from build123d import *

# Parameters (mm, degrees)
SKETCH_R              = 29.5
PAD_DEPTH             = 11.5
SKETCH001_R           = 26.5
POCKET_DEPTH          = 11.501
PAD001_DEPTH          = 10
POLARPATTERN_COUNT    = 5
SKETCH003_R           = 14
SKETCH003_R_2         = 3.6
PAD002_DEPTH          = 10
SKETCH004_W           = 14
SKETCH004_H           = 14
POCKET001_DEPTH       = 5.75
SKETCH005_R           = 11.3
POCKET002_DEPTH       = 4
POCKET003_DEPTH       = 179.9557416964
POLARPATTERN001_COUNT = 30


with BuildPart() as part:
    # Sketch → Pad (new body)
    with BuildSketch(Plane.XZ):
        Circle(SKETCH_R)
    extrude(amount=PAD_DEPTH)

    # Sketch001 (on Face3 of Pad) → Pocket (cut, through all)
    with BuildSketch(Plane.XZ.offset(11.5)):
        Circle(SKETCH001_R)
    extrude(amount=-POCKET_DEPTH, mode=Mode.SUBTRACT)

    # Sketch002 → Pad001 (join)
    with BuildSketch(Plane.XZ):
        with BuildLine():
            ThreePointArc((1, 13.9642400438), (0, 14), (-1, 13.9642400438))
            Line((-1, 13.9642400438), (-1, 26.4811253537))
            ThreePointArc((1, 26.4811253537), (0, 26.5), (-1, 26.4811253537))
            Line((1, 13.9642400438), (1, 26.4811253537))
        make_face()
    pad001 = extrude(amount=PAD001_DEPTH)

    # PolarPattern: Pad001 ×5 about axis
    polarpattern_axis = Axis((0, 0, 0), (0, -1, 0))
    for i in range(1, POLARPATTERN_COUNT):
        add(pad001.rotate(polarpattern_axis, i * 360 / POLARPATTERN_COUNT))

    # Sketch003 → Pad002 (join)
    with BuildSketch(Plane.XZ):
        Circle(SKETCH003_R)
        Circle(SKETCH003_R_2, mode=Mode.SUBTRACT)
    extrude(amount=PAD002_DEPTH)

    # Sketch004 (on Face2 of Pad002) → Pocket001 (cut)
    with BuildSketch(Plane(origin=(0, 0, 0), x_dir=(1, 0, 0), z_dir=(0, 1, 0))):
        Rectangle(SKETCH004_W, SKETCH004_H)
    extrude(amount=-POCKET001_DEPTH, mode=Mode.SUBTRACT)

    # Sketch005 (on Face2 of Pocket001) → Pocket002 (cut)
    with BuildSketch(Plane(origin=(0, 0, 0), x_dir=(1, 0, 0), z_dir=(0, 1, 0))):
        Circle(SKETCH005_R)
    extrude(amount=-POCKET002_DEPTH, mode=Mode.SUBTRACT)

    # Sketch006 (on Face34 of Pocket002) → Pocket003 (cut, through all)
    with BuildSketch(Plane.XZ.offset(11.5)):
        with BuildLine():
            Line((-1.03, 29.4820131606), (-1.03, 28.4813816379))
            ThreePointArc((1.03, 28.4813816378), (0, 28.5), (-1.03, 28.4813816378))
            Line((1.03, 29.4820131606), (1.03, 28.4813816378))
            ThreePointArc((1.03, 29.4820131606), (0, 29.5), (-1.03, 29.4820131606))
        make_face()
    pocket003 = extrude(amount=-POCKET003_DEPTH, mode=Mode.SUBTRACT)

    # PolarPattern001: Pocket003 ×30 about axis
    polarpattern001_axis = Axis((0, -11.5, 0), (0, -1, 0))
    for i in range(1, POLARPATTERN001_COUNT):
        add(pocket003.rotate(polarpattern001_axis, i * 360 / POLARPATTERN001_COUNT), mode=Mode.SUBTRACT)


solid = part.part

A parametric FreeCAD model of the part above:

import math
import FreeCAD as App
import Part
import Sketcher

V = App.Vector

doc = App.newDocument("Part")
body = doc.addObject("PartDesign::Body", "Body")

# Sketch on XZ plane
sketch1 = body.newObject("Sketcher::SketchObject", "Sketch")
sketch1.AttachmentSupport = (doc.getObject("XZ_Plane"), [""])
sketch1.MapMode = "FlatFace"
sketch1.addGeometry(Part.Circle(V(0, 0, 0), V(0, 0, 1), 30), False)
sketch1.addConstraint([
    Sketcher.Constraint("Coincident", 0, 3, -1, 1),
    Sketcher.Constraint("Diameter", 0, 59.0),
])
pad1 = body.newObject("PartDesign::Pad", "Pad")
pad1.Profile = sketch1
pad1.Length = 11.5

# Sketch on XZ plane
sketch2 = body.newObject("Sketcher::SketchObject", "Sketch001")
sketch2.AttachmentSupport = (doc.getObject("XZ_Plane"), [""])
sketch2.MapMode = "FlatFace"
sketch2.AttachmentOffset = App.Placement(V(0, 0, 11.5), App.Rotation())
sketch2.addGeometry(Part.Circle(V(0, 0, 0), V(0, 0, 1), 26), False)
sketch2.addConstraint([
    Sketcher.Constraint("Coincident", 0, 3, -1, 1),
    Sketcher.Constraint("Diameter", 0, 53.0),
])
pocket1 = body.newObject("PartDesign::Pocket", "Pocket")
pocket1.Profile = sketch2
pocket1.Type = "ThroughAll"

# Sketch on XZ plane
sketch3 = body.newObject("Sketcher::SketchObject", "Sketch002")
sketch3.AttachmentSupport = (doc.getObject("XZ_Plane"), [""])
sketch3.MapMode = "FlatFace"
sketch3.addGeometry([
    Part.ArcOfCircle(Part.Circle(V(0, 0, 0), V(0, 0, 1), 14), math.radians(85.9), math.radians(94.1)),
    Part.LineSegment(V(1, 14, 0), V(1, 26.5, 0)),
    Part.ArcOfCircle(Part.Circle(V(0, 0, 0), V(0, 0, 1), 26.5), math.radians(87.84), math.radians(92.16)),
    Part.LineSegment(V(-1, 26.5, 0), V(-1, 14, 0)),
], False)
sketch3.addConstraint([
    Sketcher.Constraint("Coincident", 0, 1, 1, 1),
    Sketcher.Constraint("Coincident", 1, 2, 2, 1),
    Sketcher.Constraint("Coincident", 2, 2, 3, 1),
    Sketcher.Constraint("Coincident", 3, 2, 0, 2),
    Sketcher.Constraint("Vertical", 1),
    Sketcher.Constraint("Vertical", 3),
    Sketcher.Constraint("Coincident", 0, 3, -1, 1),
    Sketcher.Constraint("Coincident", 2, 3, -1, 1),
    Sketcher.Constraint("Horizontal", 1, 2, 2, 2),
    Sketcher.Constraint("Radius", 0, 14.0),
    Sketcher.Constraint("Radius", 2, 26.5),
    Sketcher.Constraint("DistanceX", -1, 1, 0, 1, 1.0),
])
pad2 = body.newObject("PartDesign::Pad", "Pad001")
pad2.Profile = sketch3
pad2.Length = 10
doc.recompute()

polarpattern = body.newObject("PartDesign::PolarPattern", "PolarPattern")
polarpattern.Originals = [pad2]
polarpattern.Axis = (doc.getObject("Y_Axis"), [""])
polarpattern.Angle = 360
polarpattern.Occurrences = 5
body.Tip = polarpattern

# Sketch on XZ plane
sketch4 = body.newObject("Sketcher::SketchObject", "Sketch003")
sketch4.AttachmentSupport = (doc.getObject("XZ_Plane"), [""])
sketch4.MapMode = "FlatFace"
sketch4.addGeometry([
    Part.Circle(V(0, 0, 0), V(0, 0, 1), 14),
    Part.Circle(V(0, 0, 0), V(0, 0, 1), 3.6),
], False)
sketch4.addConstraint([
    Sketcher.Constraint("Coincident", 0, 3, -1, 1),
    Sketcher.Constraint("Coincident", 1, 3, -1, 1),
    Sketcher.Constraint("Diameter", 0, 28.0),
    Sketcher.Constraint("Diameter", 1, 7.2),
])
pad3 = body.newObject("PartDesign::Pad", "Pad002")
pad3.Profile = sketch4
pad3.Length = 10

# Sketch on XZ plane
sketch5 = body.newObject("Sketcher::SketchObject", "Sketch004")
sketch5.AttachmentSupport = (doc.getObject("XZ_Plane"), [""])
sketch5.MapMode = "FlatFace"
sketch5.addGeometry([
    Part.LineSegment(V(-7, -7, 0), V(-7, 7, 0)),
    Part.LineSegment(V(-7, 7, 0), V(7, 7, 0)),
    Part.LineSegment(V(7, 7, 0), V(7, -7, 0)),
    Part.LineSegment(V(7, -7, 0), V(-7, -7, 0)),
], False)
sketch5.addConstraint([
    Sketcher.Constraint("Coincident", 0, 2, 1, 1),
    Sketcher.Constraint("Coincident", 1, 2, 2, 1),
    Sketcher.Constraint("Coincident", 2, 2, 3, 1),
    Sketcher.Constraint("Coincident", 3, 2, 0, 1),
    Sketcher.Constraint("Vertical", 0),
    Sketcher.Constraint("Horizontal", 1),
    Sketcher.Constraint("Vertical", 2),
    Sketcher.Constraint("Horizontal", 3),
    Sketcher.Constraint("Symmetric", 0, 2, 2, 2, -1, 1),
    Sketcher.Constraint("Equal", 3, 0),
    Sketcher.Constraint("DistanceX", 1, 1, 1, 2, 14.0),
])
pocket2 = body.newObject("PartDesign::Pocket", "Pocket001")
pocket2.Profile = sketch5
pocket2.Length = 5.75
pocket2.Reversed = True

# Sketch on XZ plane
sketch6 = body.newObject("Sketcher::SketchObject", "Sketch005")
sketch6.AttachmentSupport = (doc.getObject("XZ_Plane"), [""])
sketch6.MapMode = "FlatFace"
sketch6.addGeometry(Part.Circle(V(0, 0, 0), V(0, 0, 1), 11), False)
sketch6.addConstraint([
    Sketcher.Constraint("Coincident", 0, 3, -1, 1),
    Sketcher.Constraint("Diameter", 0, 22.6),
])
pocket3 = body.newObject("PartDesign::Pocket", "Pocket002")
pocket3.Profile = sketch6
pocket3.Length = 4
pocket3.Reversed = True

# Sketch on XZ plane
sketch7 = body.newObject("Sketcher::SketchObject", "Sketch006")
sketch7.AttachmentSupport = (doc.getObject("XZ_Plane"), [""])
sketch7.MapMode = "FlatFace"
sketch7.AttachmentOffset = App.Placement(V(0, 0, 11.5), App.Rotation())
sketch7.addGeometry([
    Part.LineSegment(V(-1, 29.5, 0), V(-1, 28.5, 0)),
    Part.ArcOfCircle(Part.Circle(V(0, 0, 0), V(0, 0, 1), 28.5), math.radians(87.93), math.radians(92.07)),
    Part.LineSegment(V(1, 28.5, 0), V(1, 29.5, 0)),
    Part.ArcOfCircle(Part.Circle(V(0, 0, 0), V(0, 0, 1), 29.5), math.radians(88), math.radians(92)),
], False)
sketch7.addConstraint([
    Sketcher.Constraint("Coincident", 0, 2, 1, 2),
    Sketcher.Constraint("Coincident", 1, 1, 2, 1),
    Sketcher.Constraint("Coincident", 2, 2, 3, 1),
    Sketcher.Constraint("Coincident", 3, 2, 0, 1),
    Sketcher.Constraint("Vertical", 0),
    Sketcher.Constraint("Vertical", 2),
    Sketcher.Constraint("Coincident", 1, 3, -1, 1),
    Sketcher.Constraint("Coincident", 3, 3, -1, 1),
    Sketcher.Constraint("Horizontal", 0, 2, 1, 1),
    Sketcher.Constraint("Radius", 1, 28.5),
    Sketcher.Constraint("Radius", 3, 29.5),
    Sketcher.Constraint("DistanceX", 0, 2, -1, 1, 1.03),
])
pocket4 = body.newObject("PartDesign::Pocket", "Pocket003")
pocket4.Profile = sketch7
pocket4.Type = "ThroughAll"
doc.recompute()

polarpattern2 = body.newObject("PartDesign::PolarPattern", "PolarPattern001")
polarpattern2.Originals = [pocket4]
polarpattern2.Axis = (doc.getObject("Y_Axis"), [""])
polarpattern2.Angle = 360
polarpattern2.Occurrences = 30
body.Tip = polarpattern2

doc.recompute()
